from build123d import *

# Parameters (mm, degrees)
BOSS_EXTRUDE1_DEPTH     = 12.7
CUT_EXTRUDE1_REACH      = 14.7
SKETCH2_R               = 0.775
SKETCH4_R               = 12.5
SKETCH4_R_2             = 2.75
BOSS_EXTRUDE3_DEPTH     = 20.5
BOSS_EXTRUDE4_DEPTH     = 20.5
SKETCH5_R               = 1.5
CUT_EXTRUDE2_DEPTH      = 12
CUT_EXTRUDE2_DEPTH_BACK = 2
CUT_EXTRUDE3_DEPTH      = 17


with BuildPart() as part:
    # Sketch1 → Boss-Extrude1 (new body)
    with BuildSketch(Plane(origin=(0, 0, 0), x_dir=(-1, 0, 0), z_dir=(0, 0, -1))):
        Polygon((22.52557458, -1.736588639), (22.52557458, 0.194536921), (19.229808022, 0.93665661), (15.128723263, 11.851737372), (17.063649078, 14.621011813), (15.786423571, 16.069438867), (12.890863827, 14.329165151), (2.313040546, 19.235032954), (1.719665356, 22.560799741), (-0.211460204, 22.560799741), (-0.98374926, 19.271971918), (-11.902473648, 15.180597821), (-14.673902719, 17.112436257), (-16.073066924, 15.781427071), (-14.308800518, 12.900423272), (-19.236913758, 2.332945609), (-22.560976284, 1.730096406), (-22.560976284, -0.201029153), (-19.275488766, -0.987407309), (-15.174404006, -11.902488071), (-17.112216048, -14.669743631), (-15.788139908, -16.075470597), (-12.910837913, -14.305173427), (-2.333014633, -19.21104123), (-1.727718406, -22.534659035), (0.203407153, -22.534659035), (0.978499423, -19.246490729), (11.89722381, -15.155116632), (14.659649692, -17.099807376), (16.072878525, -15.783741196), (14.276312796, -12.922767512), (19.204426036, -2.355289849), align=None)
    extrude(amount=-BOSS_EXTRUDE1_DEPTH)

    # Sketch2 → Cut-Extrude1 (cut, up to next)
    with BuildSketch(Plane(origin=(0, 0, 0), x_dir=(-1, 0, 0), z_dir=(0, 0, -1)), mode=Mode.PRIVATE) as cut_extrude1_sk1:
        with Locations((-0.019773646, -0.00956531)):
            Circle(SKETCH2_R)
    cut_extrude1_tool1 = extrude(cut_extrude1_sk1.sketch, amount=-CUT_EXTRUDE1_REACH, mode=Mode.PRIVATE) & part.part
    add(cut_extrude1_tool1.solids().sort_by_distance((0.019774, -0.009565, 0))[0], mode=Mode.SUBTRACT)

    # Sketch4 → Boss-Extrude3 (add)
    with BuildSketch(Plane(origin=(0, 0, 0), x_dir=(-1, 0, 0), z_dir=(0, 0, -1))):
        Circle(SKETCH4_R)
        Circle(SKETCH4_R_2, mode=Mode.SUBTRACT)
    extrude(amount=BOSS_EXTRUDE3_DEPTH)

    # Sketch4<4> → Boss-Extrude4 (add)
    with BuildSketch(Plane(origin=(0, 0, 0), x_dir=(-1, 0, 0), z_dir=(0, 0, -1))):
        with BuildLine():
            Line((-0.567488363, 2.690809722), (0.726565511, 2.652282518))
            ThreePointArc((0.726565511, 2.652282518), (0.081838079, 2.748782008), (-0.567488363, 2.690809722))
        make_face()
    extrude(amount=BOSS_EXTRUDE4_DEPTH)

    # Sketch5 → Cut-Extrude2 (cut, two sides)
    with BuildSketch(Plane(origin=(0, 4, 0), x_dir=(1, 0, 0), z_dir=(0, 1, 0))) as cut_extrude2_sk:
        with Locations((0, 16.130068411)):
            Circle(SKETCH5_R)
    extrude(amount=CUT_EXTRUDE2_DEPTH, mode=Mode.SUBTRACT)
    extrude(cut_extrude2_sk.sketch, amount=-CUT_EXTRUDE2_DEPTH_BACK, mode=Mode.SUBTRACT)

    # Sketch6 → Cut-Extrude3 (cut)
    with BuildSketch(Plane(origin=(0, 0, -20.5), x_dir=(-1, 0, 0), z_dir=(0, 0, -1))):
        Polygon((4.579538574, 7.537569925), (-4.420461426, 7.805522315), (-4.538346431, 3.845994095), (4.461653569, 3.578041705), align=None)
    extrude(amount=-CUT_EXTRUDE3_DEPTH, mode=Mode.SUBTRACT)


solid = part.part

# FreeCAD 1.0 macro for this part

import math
import FreeCAD as App
import Part
import Sketcher
Q = App.Units.Quantity

doc = App.newDocument("Part")
body = doc.addObject("PartDesign::Body", "Body")

# Sketch on XY plane
sketch1 = doc.addObject("Sketcher::SketchObject", "Sketch")
body.addObject(sketch1)
sketch1.AttachmentSupport = (doc.XY_Plane, [""])
sketch1.MapMode = "FlatFace"
sketch1.addGeometry(Part.LineSegment(App.Vector(-22.525575, -1.736589, 0), App.Vector(-22.525575, 0.194537, 0)), False)
sketch1.addGeometry(Part.LineSegment(App.Vector(-22.525575, 0.194537, 0), App.Vector(-19.229808, 0.936657, 0)), False)
sketch1.addGeometry(Part.LineSegment(App.Vector(-19.229808, 0.936657, 0), App.Vector(-15.128723, 11.851737, 0)), False)
sketch1.addGeometry(Part.LineSegment(App.Vector(-15.128723, 11.851737, 0), App.Vector(-17.063649, 14.621012, 0)), False)
sketch1.addGeometry(Part.LineSegment(App.Vector(-17.063649, 14.621012, 0), App.Vector(-15.786424, 16.069439, 0)), False)
sketch1.addGeometry(Part.LineSegment(App.Vector(-15.786424, 16.069439, 0), App.Vector(-12.890864, 14.329165, 0)), False)
sketch1.addGeometry(Part.LineSegment(App.Vector(-12.890864, 14.329165, 0), App.Vector(-2.313041, 19.235033, 0)), False)
sketch1.addGeometry(Part.LineSegment(App.Vector(-2.313041, 19.235033, 0), App.Vector(-1.719665, 22.5608, 0)), False)
sketch1.addGeometry(Part.LineSegment(App.Vector(-1.719665, 22.5608, 0), App.Vector(0.21146, 22.5608, 0)), False)
sketch1.addGeometry(Part.LineSegment(App.Vector(0.21146, 22.5608, 0), App.Vector(0.983749, 19.271972, 0)), False)
sketch1.addGeometry(Part.LineSegment(App.Vector(0.983749, 19.271972, 0), App.Vector(11.902474, 15.180598, 0)), False)
sketch1.addGeometry(Part.LineSegment(App.Vector(11.902474, 15.180598, 0), App.Vector(14.673903, 17.112436, 0)), False)
sketch1.addGeometry(Part.LineSegment(App.Vector(14.673903, 17.112436, 0), App.Vector(16.073067, 15.781427, 0)), False)
sketch1.addGeometry(Part.LineSegment(App.Vector(16.073067, 15.781427, 0), App.Vector(14.308801, 12.900423, 0)), False)
sketch1.addGeometry(Part.LineSegment(App.Vector(14.308801, 12.900423, 0), App.Vector(19.236914, 2.332946, 0)), False)
sketch1.addGeometry(Part.LineSegment(App.Vector(19.236914, 2.332946, 0), App.Vector(22.560976, 1.730096, 0)), False)
sketch1.addGeometry(Part.LineSegment(App.Vector(22.560976, 1.730096, 0), App.Vector(22.560976, -0.201029, 0)), False)
sketch1.addGeometry(Part.LineSegment(App.Vector(22.560976, -0.201029, 0), App.Vector(19.275489, -0.987407, 0)), False)
sketch1.addGeometry(Part.LineSegment(App.Vector(19.275489, -0.987407, 0), App.Vector(15.174404, -11.902488, 0)), False)
sketch1.addGeometry(Part.LineSegment(App.Vector(15.174404, -11.902488, 0), App.Vector(17.112216, -14.669744, 0)), False)
sketch1.addGeometry(Part.LineSegment(App.Vector(17.112216, -14.669744, 0), App.Vector(15.78814, -16.075471, 0)), False)
sketch1.addGeometry(Part.LineSegment(App.Vector(15.78814, -16.075471, 0), App.Vector(12.910838, -14.305173, 0)), False)
sketch1.addGeometry(Part.LineSegment(App.Vector(12.910838, -14.305173, 0), App.Vector(2.333015, -19.211041, 0)), False)
sketch1.addGeometry(Part.LineSegment(App.Vector(2.333015, -19.211041, 0), App.Vector(1.727718, -22.534659, 0)), False)
sketch1.addGeometry(Part.LineSegment(App.Vector(1.727718, -22.534659, 0), App.Vector(-0.203407, -22.534659, 0)), False)
sketch1.addGeometry(Part.LineSegment(App.Vector(-0.203407, -22.534659, 0), App.Vector(-0.978499, -19.246491, 0)), False)
sketch1.addGeometry(Part.LineSegment(App.Vector(-0.978499, -19.246491, 0), App.Vector(-11.897224, -15.155117, 0)), False)
sketch1.addGeometry(Part.LineSegment(App.Vector(-11.897224, -15.155117, 0), App.Vector(-14.65965, -17.099807, 0)), False)
sketch1.addGeometry(Part.LineSegment(App.Vector(-14.65965, -17.099807, 0), App.Vector(-16.072879, -15.783741, 0)), False)
sketch1.addGeometry(Part.LineSegment(App.Vector(-16.072879, -15.783741, 0), App.Vector(-14.276313, -12.922768, 0)), False)
sketch1.addGeometry(Part.LineSegment(App.Vector(-14.276313, -12.922768, 0), App.Vector(-19.204426, -2.35529, 0)), False)
sketch1.addGeometry(Part.LineSegment(App.Vector(-19.204426, -2.35529, 0), App.Vector(-22.525575, -1.736589, 0)), False)
sketch1.addConstraint(Sketcher.Constraint("Coincident", 0, 2, 1, 1))
sketch1.addConstraint(Sketcher.Constraint("Coincident", 1, 2, 2, 1))
sketch1.addConstraint(Sketcher.Constraint("Coincident", 2, 2, 3, 1))
sketch1.addConstraint(Sketcher.Constraint("Coincident", 3, 2, 4, 1))
sketch1.addConstraint(Sketcher.Constraint("Coincident", 4, 2, 5, 1))
sketch1.addConstraint(Sketcher.Constraint("Coincident", 5, 2, 6, 1))
sketch1.addConstraint(Sketcher.Constraint("Coincident", 6, 2, 7, 1))
sketch1.addConstraint(Sketcher.Constraint("Coincident", 7, 2, 8, 1))
sketch1.addConstraint(Sketcher.Constraint("Coincident", 8, 2, 9, 1))
sketch1.addConstraint(Sketcher.Constraint("Coincident", 9, 2, 10, 1))
sketch1.addConstraint(Sketcher.Constraint("Coincident", 10, 2, 11, 1))
sketch1.addConstraint(Sketcher.Constraint("Coincident", 11, 2, 12, 1))
sketch1.addConstraint(Sketcher.Constraint("Coincident", 12, 2, 13, 1))
sketch1.addConstraint(Sketcher.Constraint("Coincident", 13, 2, 14, 1))
sketch1.addConstraint(Sketcher.Constraint("Coincident", 14, 2, 15, 1))
sketch1.addConstraint(Sketcher.Constraint("Coincident", 15, 2, 16, 1))
sketch1.addConstraint(Sketcher.Constraint("Coincident", 16, 2, 17, 1))
sketch1.addConstraint(Sketcher.Constraint("Coincident", 17, 2, 18, 1))
sketch1.addConstraint(Sketcher.Constraint("Coincident", 18, 2, 19, 1))
sketch1.addConstraint(Sketcher.Constraint("Coincident", 19, 2, 20, 1))
sketch1.addConstraint(Sketcher.Constraint("Coincident", 20, 2, 21, 1))
sketch1.addConstraint(Sketcher.Constraint("Coincident", 21, 2, 22, 1))
sketch1.addConstraint(Sketcher.Constraint("Coincident", 22, 2, 23, 1))
sketch1.addConstraint(Sketcher.Constraint("Coincident", 23, 2, 24, 1))
sketch1.addConstraint(Sketcher.Constraint("Coincident", 24, 2, 25, 1))
sketch1.addConstraint(Sketcher.Constraint("Coincident", 25, 2, 26, 1))
sketch1.addConstraint(Sketcher.Constraint("Coincident", 26, 2, 27, 1))
sketch1.addConstraint(Sketcher.Constraint("Coincident", 27, 2, 28, 1))
sketch1.addConstraint(Sketcher.Constraint("Coincident", 28, 2, 29, 1))
sketch1.addConstraint(Sketcher.Constraint("Coincident", 29, 2, 30, 1))
sketch1.addConstraint(Sketcher.Constraint("Coincident", 30, 2, 31, 1))
sketch1.addConstraint(Sketcher.Constraint("Coincident", 31, 2, 0, 1))
sketch1.addConstraint(Sketcher.Constraint("Vertical", 0))
sketch1.addConstraint(Sketcher.Constraint("Horizontal", 8))
sketch1.addConstraint(Sketcher.Constraint("Vertical", 16))
sketch1.addConstraint(Sketcher.Constraint("Horizontal", 24))
sketch1.addConstraint(Sketcher.Constraint("DistanceY", -1, 1, 7, 2, Q("22.5608 mm")))
sketch1.addConstraint(Sketcher.Constraint("DistanceX", -1, 1, 13, 2, Q("14.308801 mm")))
sketch1.addConstraint(Sketcher.Constraint("DistanceX", 25, 2, -1, 1, Q("0.978499 mm")))
sketch1.addConstraint(Sketcher.Constraint("DistanceY", 0, 2, 2, 2, Q("11.6572 mm")))
sketch1.addConstraint(Sketcher.Constraint("DistanceX", 4, 2, 2, 2, Q("0.6577 mm")))
sketch1.addConstraint(Sketcher.Constraint("DistanceY", 2, 2, 4, 2, Q("4.217701 mm")))
sketch1.addConstraint(Sketcher.Constraint("DistanceX", 5, 2, 7, 2, Q("11.171198 mm")))
sketch1.addConstraint(Sketcher.Constraint("DistanceX", 6, 2, 8, 2, Q("2.524501 mm")))
sketch1.addConstraint(Sketcher.Constraint("DistanceY", 10, 2, 8, 2, Q("7.380202 mm")))
sketch1.addConstraint(Sketcher.Constraint("DistanceY", 15, 2, 10, 2, Q("13.450501 mm")))
sketch1.addConstraint(Sketcher.Constraint("DistanceX", 21, 2, 20, 2, Q("2.877302 mm")))
sketch1.addConstraint(Sketcher.Constraint("DistanceX", 22, 2, 19, 2, Q("14.779201 mm")))
sketch1.addConstraint(Sketcher.Constraint("DistanceY", 30, 2, 31, 2, Q("0.618701 mm")))
sketch1.addConstraint(Sketcher.Constraint("DistanceX", 8, 1, 8, 2, Q("1.931126 mm")))
sketch1.addConstraint(Sketcher.Constraint("DistanceX", 24, 2, 24, 1, Q("1.931126 mm")))
sketch1.addConstraint(Sketcher.Constraint("DistanceY", 0, 1, 0, 2, Q("1.931126 mm")))
sketch1.addConstraint(Sketcher.Constraint("DistanceY", 16, 2, 16, 1, Q("1.931126 mm")))
sketch1.addConstraint(Sketcher.Constraint("DistanceX", 1, 2, -1, 1, Q("19.229808 mm")))
sketch1.addConstraint(Sketcher.Constraint("DistanceX", 3, 2, -1, 1, Q("17.063649 mm")))
sketch1.addConstraint(Sketcher.Constraint("DistanceY", -1, 1, 3, 2, Q("14.621012 mm")))
sketch1.addConstraint(Sketcher.Constraint("DistanceY", -1, 1, 4, 2, Q("16.069439 mm")))
sketch1.addConstraint(Sketcher.Constraint("DistanceX", 6, 2, -1, 1, Q("2.313041 mm")))
sketch1.addConstraint(Sketcher.Constraint("DistanceX", -1, 1, 9, 2, Q("0.983749 mm")))
sketch1.addConstraint(Sketcher.Constraint("DistanceY", -1, 1, 9, 2, Q("19.271972 mm")))
sketch1.addConstraint(Sketcher.Constraint("DistanceX", -1, 1, 17, 2, Q("19.275489 mm")))
sketch1.addConstraint(Sketcher.Constraint("DistanceY", 18, 2, -1, 1, Q("11.902488 mm")))
sketch1.addConstraint(Sketcher.Constraint("DistanceX", -1, 1, 20, 2, Q("15.78814 mm")))
sketch1.addConstraint(Sketcher.Constraint("DistanceY", 20, 2, -1, 1, Q("16.075471 mm")))
sketch1.addConstraint(Sketcher.Constraint("DistanceY", 22, 2, -1, 1, Q("19.211041 mm")))
sketch1.addConstraint(Sketcher.Constraint("DistanceX", -1, 1, 23, 2, Q("1.727718 mm")))
sketch1.addConstraint(Sketcher.Constraint("DistanceY", 23, 2, -1, 1, Q("22.534659 mm")))
sketch1.addConstraint(Sketcher.Constraint("DistanceY", 25, 2, -1, 1, Q("19.246491 mm")))
sketch1.addConstraint(Sketcher.Constraint("DistanceX", 27, 2, -1, 1, Q("14.65965 mm")))
sketch1.addConstraint(Sketcher.Constraint("DistanceX", 28, 2, -1, 1, Q("16.072879 mm")))
sketch1.addConstraint(Sketcher.Constraint("DistanceY", 28, 2, -1, 1, Q("15.783741 mm")))
sketch1.addConstraint(Sketcher.Constraint("DistanceY", 0, 2, 1, 2, Q("0.74212 mm")))
sketch1.addConstraint(Sketcher.Constraint("DistanceX", 0, 2, 2, 2, Q("7.396851 mm")))
sketch1.addConstraint(Sketcher.Constraint("DistanceX", 2, 2, 5, 2, Q("2.237859 mm")))
sketch1.addConstraint(Sketcher.Constraint("DistanceY", 1, 2, 5, 2, Q("13.392509 mm")))
sketch1.addConstraint(Sketcher.Constraint("DistanceY", 3, 2, 6, 2, Q("4.614021 mm")))
sketch1.addConstraint(Sketcher.Constraint("DistanceX", 7, 2, 10, 2, Q("13.622139 mm")))
sketch1.addConstraint(Sketcher.Constraint("DistanceX", 10, 2, 11, 2, Q("2.771429 mm")))
sketch1.addConstraint(Sketcher.Constraint("DistanceY", 10, 2, 11, 2, Q("1.931838 mm")))
sketch1.addConstraint(Sketcher.Constraint("DistanceY", 12, 2, 11, 2, Q("1.331009 mm")))
sketch1.addConstraint(Sketcher.Constraint("DistanceY", 13, 2, 9, 2, Q("6.371549 mm")))
sketch1.addConstraint(Sketcher.Constraint("DistanceY", 14, 2, 12, 2, Q("13.448481 mm")))
sketch1.addConstraint(Sketcher.Constraint("DistanceX", 10, 2, 14, 2, Q("7.33444 mm")))
sketch1.addConstraint(Sketcher.Constraint("DistanceX", 12, 2, 15, 2, Q("6.487909 mm")))
sketch1.addConstraint(Sketcher.Constraint("DistanceY", 17, 2, 16, 2, Q("0.786378 mm")))
sketch1.addConstraint(Sketcher.Constraint("DistanceX", 12, 2, 17, 2, Q("3.202422 mm")))
sketch1.addConstraint(Sketcher.Constraint("DistanceX", 18, 2, 14, 2, Q("4.06251 mm")))
sketch1.addConstraint(Sketcher.Constraint("DistanceX", 19, 2, 16, 2, Q("5.44876 mm")))
sketch1.addConstraint(Sketcher.Constraint("DistanceY", 19, 2, 14, 2, Q("17.002689 mm")))
sketch1.addConstraint(Sketcher.Constraint("DistanceY", 19, 2, 21, 2, Q("0.36457 mm")))
sketch1.addConstraint(Sketcher.Constraint("DistanceX", 26, 2, 22, 2, Q("14.230238 mm")))
sketch1.addConstraint(Sketcher.Constraint("DistanceY", 27, 2, 26, 2, Q("1.944691 mm")))
sketch1.addConstraint(Sketcher.Constraint("DistanceY", 24, 2, 27, 2, Q("5.434852 mm")))
sketch1.addConstraint(Sketcher.Constraint("DistanceX", 29, 2, 26, 2, Q("2.379089 mm")))
sketch1.addConstraint(Sketcher.Constraint("DistanceY", 26, 2, 29, 2, Q("2.232349 mm")))
sketch1.addConstraint(Sketcher.Constraint("DistanceX", 1, 2, 30, 2, Q("0.025382 mm")))
pad1 = doc.addObject("PartDesign::Pad", "Pad")
body.addObject(pad1)
pad1.Profile = sketch1
pad1.Length = 12.7

# Sketch on XY plane
sketch2 = doc.addObject("Sketcher::SketchObject", "Sketch001")
body.addObject(sketch2)
sketch2.AttachmentSupport = (doc.XY_Plane, [""])
sketch2.MapMode = "FlatFace"
sketch2.addGeometry(Part.Circle(App.Vector(0.019774, -0.009565, 0), App.Vector(0, 0, 1), 0.775), False)
sketch2.addConstraint(Sketcher.Constraint("Diameter", 0, Q("1.55 mm")))
sketch2.addConstraint(Sketcher.Constraint("DistanceX", -1, 1, 0, 3, Q("0.019774 mm")))
sketch2.addConstraint(Sketcher.Constraint("DistanceY", 0, 3, -1, 1, Q("0.009565 mm")))
pocket1 = doc.addObject("PartDesign::Pocket", "Pocket")
body.addObject(pocket1)
pocket1.Profile = sketch2
pocket1.Type = "UpToFirst"
pocket1.Reversed = True

# Sketch on XY plane
sketch3 = doc.addObject("Sketcher::SketchObject", "Sketch002")
body.addObject(sketch3)
sketch3.AttachmentSupport = (doc.XY_Plane, [""])
sketch3.MapMode = "FlatFace"
sketch3.addGeometry(Part.Circle(App.Vector(0, 0, 0), App.Vector(0, 0, 1), 12.5), False)
sketch3.addGeometry(Part.Circle(App.Vector(0, 0, 0), App.Vector(0, 0, 1), 2.75), False)
sketch3.addConstraint(Sketcher.Constraint("Coincident", 0, 3, -1, 1))
sketch3.addConstraint(Sketcher.Constraint("Coincident", 1, 3, -1, 1))
sketch3.addConstraint(Sketcher.Constraint("Diameter", 0, Q("25 mm")))
sketch3.addConstraint(Sketcher.Constraint("Diameter", 1, Q("5.5 mm")))
pad2 = doc.addObject("PartDesign::Pad", "Pad001")
body.addObject(pad2)
pad2.Profile = sketch3
pad2.Length = 20.5
pad2.Reversed = True

# Sketch on XY plane
sketch4 = doc.addObject("Sketcher::SketchObject", "Sketch003")
body.addObject(sketch4)
sketch4.AttachmentSupport = (doc.XY_Plane, [""])
sketch4.MapMode = "FlatFace"
sketch4.addGeometry(Part.LineSegment(App.Vector(0.567488, 2.69081, 0), App.Vector(-0.726566, 2.652283, 0)), False)
sketch4.addGeometry(Part.ArcOfCircle(Part.Circle(App.Vector(0, 0, 0), App.Vector(0, 0, 1), 2.75), math.radians(78.090911), math.radians(105.319757)), False)
sketch4.addConstraint(Sketcher.Constraint("Coincident", 0, 1, 1, 1))
sketch4.addConstraint(Sketcher.Constraint("Coincident", 1, 2, 0, 2))
sketch4.addConstraint(Sketcher.Constraint("Coincident", 1, 3, -1, 1))
sketch4.addConstraint(Sketcher.Constraint("Radius", 1, Q("2.75 mm")))
sketch4.addConstraint(Sketcher.Constraint("DistanceX", -1, 1, 0, 1, Q("0.567488 mm")))
sketch4.addConstraint(Sketcher.Constraint("Distance", 0, Q("1.294627 mm")))
pad3 = doc.addObject("PartDesign::Pad", "Pad002")
body.addObject(pad3)
pad3.Profile = sketch4
pad3.Length = 20.5
pad3.Reversed = True

# Sketch on XZ plane
sketch5 = doc.addObject("Sketcher::SketchObject", "Sketch004")
body.addObject(sketch5)
sketch5.AttachmentSupport = (doc.XZ_Plane, [""])
sketch5.MapMode = "FlatFace"
sketch5.AttachmentOffset = App.Placement(App.Vector(0, 0, -4), App.Rotation())
sketch5.addGeometry(Part.Circle(App.Vector(0, -16.130068, 0), App.Vector(0, 0, 1), 1.5), False)
sketch5.addConstraint(Sketcher.Constraint("PointOnObject", 0, 3, -2))
sketch5.addConstraint(Sketcher.Constraint("Diameter", 0, Q("3 mm")))
sketch5.addConstraint(Sketcher.Constraint("DistanceY", 0, 3, -1, 1, Q("16.130068 mm")))
pocket2 = doc.addObject("PartDesign::Pocket", "Pocket001")
body.addObject(pocket2)
pocket2.Profile = sketch5
pocket2.Type = "TwoLengths"
pocket2.Length = 12
pocket2.Length2 = 2

# Sketch on XY plane
sketch6 = doc.addObject("Sketcher::SketchObject", "Sketch005")
body.addObject(sketch6)
sketch6.AttachmentSupport = (doc.XY_Plane, [""])
sketch6.MapMode = "FlatFace"
sketch6.AttachmentOffset = App.Placement(App.Vector(0, 0, -20.5), App.Rotation())
sketch6.addGeometry(Part.LineSegment(App.Vector(-4.579539, 7.53757, 0), App.Vector(4.420461, 7.805522, 0)), False)
sketch6.addGeometry(Part.LineSegment(App.Vector(4.420461, 7.805522, 0), App.Vector(4.538346, 3.845994, 0)), False)
sketch6.addGeometry(Part.LineSegment(App.Vector(4.538346, 3.845994, 0), App.Vector(-4.461654, 3.578042, 0)), False)
sketch6.addGeometry(Part.LineSegment(App.Vector(-4.461654, 3.578042, 0), App.Vector(-4.579539, 7.53757, 0)), False)
sketch6.addConstraint(Sketcher.Constraint("Coincident", 0, 2, 1, 1))
sketch6.addConstraint(Sketcher.Constraint("Coincident", 1, 2, 2, 1))
sketch6.addConstraint(Sketcher.Constraint("Coincident", 2, 2, 3, 1))
sketch6.addConstraint(Sketcher.Constraint("Coincident", 3, 2, 0, 1))
sketch6.addConstraint(Sketcher.Constraint("Perpendicular", 0, 1))
sketch6.addConstraint(Sketcher.Constraint("Perpendicular", 1, 2))
sketch6.addConstraint(Sketcher.Constraint("Perpendicular", 2, 3))
sketch6.addConstraint(Sketcher.Constraint("DistanceX", 2, 2, 1, 2, Q("9 mm")))
sketch6.addConstraint(Sketcher.Constraint("DistanceX", -1, 1, 0, 2, Q("4.420461 mm")))
sketch6.addConstraint(Sketcher.Constraint("DistanceY", -1, 1, 2, 2, Q("3.578042 mm")))
sketch6.addConstraint(Sketcher.Constraint("DistanceY", -1, 1, 3, 2, Q("7.53757 mm")))
sketch6.addConstraint(Sketcher.Constraint("DistanceY", 2, 2, 0, 2, Q("4.227481 mm")))
pocket3 = doc.addObject("PartDesign::Pocket", "Pocket002")
body.addObject(pocket3)
pocket3.Profile = sketch6
pocket3.Length = 17
pocket3.Reversed = True

doc.recompute()
